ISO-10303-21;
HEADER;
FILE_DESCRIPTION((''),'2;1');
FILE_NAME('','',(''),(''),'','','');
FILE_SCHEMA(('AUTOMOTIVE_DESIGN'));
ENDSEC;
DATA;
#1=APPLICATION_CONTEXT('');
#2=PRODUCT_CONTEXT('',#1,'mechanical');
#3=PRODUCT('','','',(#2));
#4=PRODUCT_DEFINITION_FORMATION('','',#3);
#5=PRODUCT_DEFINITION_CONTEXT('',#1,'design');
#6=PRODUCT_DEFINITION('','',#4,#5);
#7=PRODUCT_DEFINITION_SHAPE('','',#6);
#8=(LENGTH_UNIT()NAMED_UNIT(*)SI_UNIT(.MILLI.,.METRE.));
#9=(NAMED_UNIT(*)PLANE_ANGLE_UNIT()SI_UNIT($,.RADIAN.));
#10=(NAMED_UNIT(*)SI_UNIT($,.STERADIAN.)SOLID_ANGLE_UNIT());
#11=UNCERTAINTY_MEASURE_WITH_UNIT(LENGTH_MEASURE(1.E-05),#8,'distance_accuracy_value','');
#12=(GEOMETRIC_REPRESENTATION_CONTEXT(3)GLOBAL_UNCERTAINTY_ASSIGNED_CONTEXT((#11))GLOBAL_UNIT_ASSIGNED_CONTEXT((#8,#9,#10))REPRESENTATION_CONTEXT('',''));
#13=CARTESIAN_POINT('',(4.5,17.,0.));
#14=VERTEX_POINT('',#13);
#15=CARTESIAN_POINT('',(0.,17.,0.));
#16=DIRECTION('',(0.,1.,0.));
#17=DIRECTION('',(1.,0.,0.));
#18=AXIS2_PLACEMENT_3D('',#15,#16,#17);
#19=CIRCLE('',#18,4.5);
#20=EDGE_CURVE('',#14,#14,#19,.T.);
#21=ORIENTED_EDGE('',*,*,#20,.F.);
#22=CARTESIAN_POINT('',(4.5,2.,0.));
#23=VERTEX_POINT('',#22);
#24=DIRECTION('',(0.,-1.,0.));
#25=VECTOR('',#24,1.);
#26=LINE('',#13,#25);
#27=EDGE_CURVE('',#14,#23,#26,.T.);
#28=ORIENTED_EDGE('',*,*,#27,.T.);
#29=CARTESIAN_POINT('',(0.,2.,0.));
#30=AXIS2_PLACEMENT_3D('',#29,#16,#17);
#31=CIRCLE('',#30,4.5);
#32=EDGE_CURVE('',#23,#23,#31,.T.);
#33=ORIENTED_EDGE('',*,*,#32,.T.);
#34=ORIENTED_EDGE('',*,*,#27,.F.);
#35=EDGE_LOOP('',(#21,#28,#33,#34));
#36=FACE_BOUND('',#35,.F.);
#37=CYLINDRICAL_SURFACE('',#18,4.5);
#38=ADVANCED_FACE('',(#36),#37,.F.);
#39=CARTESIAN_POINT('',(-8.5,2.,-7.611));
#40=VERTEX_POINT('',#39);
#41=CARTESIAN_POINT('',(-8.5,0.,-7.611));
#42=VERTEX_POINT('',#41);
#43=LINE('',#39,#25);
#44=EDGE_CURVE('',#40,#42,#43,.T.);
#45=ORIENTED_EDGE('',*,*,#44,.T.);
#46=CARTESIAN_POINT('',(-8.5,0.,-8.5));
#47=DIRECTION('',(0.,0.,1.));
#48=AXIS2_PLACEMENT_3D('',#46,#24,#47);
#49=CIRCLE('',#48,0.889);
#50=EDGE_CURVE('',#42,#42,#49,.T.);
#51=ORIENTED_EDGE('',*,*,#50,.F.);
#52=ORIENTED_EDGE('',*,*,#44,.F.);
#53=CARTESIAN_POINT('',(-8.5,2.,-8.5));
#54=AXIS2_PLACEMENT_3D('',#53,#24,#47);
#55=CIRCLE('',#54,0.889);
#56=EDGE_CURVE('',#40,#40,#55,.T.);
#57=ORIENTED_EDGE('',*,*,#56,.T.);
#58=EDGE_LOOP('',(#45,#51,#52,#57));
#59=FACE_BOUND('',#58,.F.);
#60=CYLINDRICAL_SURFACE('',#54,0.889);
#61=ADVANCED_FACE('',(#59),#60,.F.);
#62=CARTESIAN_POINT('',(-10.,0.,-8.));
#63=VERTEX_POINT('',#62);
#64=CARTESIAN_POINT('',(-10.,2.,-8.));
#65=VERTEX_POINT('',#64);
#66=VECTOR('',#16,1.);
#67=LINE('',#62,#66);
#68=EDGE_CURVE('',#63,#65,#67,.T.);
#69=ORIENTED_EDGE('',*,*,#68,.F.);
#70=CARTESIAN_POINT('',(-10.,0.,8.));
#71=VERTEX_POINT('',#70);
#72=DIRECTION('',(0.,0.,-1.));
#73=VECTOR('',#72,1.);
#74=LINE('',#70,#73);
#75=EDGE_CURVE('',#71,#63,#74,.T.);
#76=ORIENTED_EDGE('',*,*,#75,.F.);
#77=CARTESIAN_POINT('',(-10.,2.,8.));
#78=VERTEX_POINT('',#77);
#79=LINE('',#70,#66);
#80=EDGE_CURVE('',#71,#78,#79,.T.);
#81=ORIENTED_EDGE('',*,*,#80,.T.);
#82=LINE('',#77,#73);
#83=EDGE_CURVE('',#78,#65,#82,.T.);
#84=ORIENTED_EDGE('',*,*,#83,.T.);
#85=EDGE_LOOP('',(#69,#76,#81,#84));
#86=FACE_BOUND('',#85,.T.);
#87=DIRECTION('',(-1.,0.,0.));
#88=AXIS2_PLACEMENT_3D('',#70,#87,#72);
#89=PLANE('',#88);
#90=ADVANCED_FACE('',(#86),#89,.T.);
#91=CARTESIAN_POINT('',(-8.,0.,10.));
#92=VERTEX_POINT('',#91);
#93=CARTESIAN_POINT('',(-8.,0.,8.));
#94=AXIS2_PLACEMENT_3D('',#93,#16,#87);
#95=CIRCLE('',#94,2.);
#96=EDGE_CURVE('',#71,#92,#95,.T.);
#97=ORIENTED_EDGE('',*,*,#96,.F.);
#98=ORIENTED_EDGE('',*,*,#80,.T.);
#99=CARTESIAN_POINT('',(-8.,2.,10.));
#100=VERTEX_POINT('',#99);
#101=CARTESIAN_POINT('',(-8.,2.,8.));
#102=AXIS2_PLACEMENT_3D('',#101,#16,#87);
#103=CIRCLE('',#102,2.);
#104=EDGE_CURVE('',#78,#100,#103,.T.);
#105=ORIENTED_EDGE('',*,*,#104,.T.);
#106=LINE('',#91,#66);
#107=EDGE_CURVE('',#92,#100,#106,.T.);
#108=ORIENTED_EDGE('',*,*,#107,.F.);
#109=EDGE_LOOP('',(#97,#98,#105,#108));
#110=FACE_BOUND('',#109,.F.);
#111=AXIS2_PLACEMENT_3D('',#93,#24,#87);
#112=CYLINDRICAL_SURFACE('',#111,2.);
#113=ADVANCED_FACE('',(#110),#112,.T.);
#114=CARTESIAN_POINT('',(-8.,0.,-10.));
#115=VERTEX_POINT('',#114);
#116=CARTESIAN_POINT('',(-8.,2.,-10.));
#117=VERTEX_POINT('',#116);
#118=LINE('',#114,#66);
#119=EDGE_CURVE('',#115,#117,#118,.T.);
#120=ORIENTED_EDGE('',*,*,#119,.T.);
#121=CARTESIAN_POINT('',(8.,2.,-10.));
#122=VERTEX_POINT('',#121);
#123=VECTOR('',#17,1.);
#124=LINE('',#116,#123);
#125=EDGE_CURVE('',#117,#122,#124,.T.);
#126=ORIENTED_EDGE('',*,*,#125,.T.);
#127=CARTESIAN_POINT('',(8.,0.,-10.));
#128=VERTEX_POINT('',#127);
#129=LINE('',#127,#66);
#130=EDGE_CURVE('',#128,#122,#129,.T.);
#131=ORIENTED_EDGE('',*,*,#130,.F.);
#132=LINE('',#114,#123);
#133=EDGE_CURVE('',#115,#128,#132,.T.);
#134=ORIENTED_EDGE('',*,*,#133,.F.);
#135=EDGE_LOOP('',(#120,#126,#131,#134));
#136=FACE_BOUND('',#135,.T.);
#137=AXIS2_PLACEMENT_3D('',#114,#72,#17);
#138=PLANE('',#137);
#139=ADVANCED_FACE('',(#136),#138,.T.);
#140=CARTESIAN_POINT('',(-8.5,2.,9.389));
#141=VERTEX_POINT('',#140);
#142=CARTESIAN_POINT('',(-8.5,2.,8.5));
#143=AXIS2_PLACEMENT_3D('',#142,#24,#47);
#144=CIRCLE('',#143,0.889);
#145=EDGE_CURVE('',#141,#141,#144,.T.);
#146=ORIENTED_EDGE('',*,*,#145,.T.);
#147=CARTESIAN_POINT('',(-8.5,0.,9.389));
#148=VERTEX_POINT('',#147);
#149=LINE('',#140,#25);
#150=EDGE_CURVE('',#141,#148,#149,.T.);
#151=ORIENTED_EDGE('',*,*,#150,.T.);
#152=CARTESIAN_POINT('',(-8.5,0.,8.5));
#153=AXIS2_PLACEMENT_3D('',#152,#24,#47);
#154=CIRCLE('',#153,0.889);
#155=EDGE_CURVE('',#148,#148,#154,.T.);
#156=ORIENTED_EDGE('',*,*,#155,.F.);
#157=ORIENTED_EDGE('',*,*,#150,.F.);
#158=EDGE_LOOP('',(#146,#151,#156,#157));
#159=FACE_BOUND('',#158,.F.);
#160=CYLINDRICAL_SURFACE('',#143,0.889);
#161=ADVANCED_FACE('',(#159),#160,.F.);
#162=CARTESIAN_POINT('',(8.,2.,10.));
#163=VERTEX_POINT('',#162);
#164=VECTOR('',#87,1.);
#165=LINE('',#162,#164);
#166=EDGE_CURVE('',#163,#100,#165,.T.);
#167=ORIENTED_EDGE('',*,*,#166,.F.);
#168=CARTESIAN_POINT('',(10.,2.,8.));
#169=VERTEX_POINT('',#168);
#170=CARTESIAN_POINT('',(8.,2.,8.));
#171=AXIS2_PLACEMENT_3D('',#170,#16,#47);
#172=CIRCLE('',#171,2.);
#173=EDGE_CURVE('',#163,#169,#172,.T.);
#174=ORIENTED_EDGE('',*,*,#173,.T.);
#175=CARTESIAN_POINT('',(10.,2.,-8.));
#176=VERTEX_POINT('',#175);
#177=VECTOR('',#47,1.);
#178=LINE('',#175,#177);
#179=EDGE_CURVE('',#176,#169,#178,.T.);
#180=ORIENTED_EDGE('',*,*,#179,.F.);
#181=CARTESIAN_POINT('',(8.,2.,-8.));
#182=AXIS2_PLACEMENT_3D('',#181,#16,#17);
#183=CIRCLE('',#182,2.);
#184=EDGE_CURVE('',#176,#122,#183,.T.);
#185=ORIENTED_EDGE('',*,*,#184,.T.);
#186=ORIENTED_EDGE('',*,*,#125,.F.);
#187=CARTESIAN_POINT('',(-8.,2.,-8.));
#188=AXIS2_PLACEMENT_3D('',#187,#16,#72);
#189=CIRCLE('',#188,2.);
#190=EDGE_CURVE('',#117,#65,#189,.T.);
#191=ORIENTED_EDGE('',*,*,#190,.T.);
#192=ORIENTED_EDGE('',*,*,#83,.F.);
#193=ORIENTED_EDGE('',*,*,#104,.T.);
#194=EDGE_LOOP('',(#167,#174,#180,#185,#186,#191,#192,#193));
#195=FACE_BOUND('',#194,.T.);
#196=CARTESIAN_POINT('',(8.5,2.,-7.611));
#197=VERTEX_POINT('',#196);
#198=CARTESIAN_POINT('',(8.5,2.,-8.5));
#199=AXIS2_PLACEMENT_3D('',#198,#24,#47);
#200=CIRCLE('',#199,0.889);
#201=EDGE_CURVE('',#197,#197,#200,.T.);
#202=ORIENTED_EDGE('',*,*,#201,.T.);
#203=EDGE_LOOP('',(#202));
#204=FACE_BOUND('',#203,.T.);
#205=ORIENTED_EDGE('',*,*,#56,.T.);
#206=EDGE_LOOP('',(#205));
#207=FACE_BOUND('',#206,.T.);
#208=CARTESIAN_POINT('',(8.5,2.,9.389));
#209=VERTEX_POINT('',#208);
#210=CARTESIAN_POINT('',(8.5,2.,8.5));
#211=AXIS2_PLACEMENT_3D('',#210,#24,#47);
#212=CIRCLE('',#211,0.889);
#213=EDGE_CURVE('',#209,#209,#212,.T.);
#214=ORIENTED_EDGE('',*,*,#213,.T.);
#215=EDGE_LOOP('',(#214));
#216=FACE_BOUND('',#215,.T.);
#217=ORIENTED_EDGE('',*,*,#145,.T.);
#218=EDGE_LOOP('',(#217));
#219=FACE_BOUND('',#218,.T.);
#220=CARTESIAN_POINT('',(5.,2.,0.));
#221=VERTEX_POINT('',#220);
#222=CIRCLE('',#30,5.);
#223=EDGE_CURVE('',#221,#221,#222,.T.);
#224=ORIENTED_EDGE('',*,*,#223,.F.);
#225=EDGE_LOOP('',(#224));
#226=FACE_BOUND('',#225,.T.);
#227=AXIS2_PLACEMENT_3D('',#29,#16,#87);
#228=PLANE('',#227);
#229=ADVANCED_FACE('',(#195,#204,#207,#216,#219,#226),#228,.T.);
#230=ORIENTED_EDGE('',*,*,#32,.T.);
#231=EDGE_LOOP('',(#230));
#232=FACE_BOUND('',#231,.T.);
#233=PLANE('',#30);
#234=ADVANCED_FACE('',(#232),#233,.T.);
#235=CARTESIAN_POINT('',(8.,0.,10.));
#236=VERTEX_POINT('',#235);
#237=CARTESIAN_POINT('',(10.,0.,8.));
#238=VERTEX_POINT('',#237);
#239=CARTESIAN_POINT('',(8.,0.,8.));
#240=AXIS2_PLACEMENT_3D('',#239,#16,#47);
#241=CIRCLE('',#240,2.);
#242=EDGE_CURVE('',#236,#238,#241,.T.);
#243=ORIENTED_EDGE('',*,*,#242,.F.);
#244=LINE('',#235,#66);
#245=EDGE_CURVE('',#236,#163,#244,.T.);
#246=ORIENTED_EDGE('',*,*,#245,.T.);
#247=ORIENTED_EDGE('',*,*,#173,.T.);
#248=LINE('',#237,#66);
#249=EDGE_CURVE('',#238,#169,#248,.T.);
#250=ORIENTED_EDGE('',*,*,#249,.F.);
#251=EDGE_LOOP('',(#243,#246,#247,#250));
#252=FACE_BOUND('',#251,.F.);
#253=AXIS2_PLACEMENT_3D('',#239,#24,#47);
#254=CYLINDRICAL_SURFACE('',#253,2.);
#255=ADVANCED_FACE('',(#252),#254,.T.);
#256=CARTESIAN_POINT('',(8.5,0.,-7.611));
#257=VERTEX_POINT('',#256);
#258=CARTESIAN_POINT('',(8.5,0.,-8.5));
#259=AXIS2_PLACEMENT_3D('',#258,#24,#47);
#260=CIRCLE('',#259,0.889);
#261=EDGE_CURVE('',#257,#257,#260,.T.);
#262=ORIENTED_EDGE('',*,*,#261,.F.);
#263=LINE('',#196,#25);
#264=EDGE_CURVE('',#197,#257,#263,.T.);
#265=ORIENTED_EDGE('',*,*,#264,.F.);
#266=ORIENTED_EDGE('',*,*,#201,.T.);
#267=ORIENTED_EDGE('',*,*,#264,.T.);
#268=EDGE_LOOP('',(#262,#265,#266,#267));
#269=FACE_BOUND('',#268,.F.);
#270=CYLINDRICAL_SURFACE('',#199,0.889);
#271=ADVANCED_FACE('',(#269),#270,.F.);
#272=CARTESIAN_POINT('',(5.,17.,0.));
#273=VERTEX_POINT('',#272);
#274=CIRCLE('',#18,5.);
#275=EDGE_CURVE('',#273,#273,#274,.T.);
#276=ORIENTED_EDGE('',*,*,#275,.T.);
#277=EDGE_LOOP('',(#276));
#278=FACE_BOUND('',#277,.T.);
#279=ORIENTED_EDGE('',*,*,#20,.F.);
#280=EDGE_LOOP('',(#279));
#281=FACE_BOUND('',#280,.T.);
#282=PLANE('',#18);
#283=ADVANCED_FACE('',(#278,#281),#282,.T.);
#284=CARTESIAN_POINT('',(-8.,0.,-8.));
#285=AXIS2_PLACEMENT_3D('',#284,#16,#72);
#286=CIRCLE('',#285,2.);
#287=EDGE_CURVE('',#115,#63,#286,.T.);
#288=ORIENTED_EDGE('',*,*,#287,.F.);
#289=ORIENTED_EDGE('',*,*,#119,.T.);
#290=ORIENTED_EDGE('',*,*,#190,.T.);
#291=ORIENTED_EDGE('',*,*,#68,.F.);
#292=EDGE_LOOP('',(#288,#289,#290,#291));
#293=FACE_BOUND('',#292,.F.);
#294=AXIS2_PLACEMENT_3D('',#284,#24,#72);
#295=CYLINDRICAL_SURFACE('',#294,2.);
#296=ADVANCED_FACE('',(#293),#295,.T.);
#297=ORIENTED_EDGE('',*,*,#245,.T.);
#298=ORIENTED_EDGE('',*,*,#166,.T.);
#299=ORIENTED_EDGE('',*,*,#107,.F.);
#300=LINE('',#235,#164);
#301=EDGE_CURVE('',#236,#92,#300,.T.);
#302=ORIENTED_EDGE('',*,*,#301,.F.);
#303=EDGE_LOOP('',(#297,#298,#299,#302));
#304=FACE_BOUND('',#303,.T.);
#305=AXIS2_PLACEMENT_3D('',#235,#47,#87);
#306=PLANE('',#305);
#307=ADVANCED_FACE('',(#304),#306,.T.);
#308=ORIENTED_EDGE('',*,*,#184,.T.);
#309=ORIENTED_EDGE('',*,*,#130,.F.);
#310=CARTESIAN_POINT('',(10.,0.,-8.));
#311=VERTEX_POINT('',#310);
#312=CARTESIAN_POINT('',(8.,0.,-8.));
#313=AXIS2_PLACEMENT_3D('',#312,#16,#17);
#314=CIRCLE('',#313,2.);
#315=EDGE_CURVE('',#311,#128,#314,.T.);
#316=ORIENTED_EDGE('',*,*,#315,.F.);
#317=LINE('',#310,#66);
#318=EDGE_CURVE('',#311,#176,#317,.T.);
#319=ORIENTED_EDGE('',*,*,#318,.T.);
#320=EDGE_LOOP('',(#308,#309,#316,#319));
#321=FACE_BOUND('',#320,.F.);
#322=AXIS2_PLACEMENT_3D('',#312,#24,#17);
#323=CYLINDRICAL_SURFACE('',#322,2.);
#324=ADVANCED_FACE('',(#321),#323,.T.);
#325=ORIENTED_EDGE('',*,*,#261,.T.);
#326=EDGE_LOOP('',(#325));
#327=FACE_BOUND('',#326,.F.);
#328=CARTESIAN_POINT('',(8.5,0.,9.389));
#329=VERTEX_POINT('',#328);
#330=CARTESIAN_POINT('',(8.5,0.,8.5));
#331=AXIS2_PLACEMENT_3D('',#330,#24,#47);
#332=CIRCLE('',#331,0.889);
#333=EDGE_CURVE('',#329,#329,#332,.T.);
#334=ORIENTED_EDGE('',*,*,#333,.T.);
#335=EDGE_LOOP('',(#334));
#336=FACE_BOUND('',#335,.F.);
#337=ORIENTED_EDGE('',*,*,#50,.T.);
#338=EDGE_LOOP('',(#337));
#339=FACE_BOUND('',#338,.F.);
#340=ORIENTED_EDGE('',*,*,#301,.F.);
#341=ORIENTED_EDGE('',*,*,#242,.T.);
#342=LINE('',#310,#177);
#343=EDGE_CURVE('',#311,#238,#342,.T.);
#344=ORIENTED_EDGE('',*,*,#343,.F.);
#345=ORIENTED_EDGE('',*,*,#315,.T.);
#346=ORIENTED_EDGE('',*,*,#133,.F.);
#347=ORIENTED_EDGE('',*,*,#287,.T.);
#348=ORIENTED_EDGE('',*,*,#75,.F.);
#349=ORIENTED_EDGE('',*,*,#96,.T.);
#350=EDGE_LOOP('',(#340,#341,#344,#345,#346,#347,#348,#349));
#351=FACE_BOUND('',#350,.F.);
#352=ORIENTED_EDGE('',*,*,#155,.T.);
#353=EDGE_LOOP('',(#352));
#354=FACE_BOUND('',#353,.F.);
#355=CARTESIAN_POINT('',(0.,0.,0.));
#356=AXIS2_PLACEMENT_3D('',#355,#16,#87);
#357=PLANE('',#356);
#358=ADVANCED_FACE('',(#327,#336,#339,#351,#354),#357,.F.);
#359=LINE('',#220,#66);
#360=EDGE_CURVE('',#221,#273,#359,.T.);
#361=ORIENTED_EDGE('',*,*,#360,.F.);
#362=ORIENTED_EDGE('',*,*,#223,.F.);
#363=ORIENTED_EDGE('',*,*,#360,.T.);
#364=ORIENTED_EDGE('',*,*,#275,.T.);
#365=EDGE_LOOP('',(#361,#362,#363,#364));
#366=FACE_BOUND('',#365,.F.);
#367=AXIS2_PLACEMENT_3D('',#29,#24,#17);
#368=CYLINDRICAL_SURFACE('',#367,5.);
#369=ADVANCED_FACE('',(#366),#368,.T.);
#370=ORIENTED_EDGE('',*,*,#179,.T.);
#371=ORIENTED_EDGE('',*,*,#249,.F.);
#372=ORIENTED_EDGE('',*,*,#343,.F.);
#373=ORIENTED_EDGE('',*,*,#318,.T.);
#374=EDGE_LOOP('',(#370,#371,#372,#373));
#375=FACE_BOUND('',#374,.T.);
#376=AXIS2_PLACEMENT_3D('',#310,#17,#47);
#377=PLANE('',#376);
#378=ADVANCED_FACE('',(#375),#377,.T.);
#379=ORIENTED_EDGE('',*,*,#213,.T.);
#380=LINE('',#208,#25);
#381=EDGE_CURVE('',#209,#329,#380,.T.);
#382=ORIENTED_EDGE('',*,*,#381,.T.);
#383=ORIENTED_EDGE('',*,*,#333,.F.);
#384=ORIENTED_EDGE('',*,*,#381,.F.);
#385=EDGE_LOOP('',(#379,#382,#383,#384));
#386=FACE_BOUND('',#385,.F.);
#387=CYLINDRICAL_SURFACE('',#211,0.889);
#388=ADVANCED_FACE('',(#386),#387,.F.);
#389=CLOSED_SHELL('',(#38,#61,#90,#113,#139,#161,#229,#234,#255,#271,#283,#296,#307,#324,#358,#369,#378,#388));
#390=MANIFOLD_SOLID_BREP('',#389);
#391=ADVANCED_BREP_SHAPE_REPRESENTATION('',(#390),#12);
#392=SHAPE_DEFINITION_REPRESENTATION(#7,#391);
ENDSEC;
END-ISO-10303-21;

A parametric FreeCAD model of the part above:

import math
import FreeCAD as App
import Part
import Sketcher

V = App.Vector

doc = App.newDocument("Part")
body = doc.addObject("PartDesign::Body", "Body")

sketch1 = doc.addObject("Sketcher::SketchObject", "Sketch")
body.addObject(sketch1)
sketch1.AttachmentSupport = (doc.XZ_Plane, [""])
sketch1.MapMode = "FlatFace"
sketch1.addGeometry(Part.LineSegment(V(-8, 10, 0), V(8, 10, 0)), False)
sketch1.addGeometry(Part.ArcOfCircle(Part.Circle(V(8, 8, 0), V(0, 0, 1), 2), math.radians(0), math.radians(90)), False)
sketch1.addGeometry(Part.LineSegment(V(10, 8, 0), V(10, -8, 0)), False)
sketch1.addGeometry(Part.ArcOfCircle(Part.Circle(V(8, -8, 0), V(0, 0, 1), 2), math.radians(-90), math.radians(0)), False)
sketch1.addGeometry(Part.LineSegment(V(8, -10, 0), V(-8, -10, 0)), False)
sketch1.addGeometry(Part.ArcOfCircle(Part.Circle(V(-8, -8, 0), V(0, 0, 1), 2), math.radians(180), math.radians(270)), False)
sketch1.addGeometry(Part.LineSegment(V(-10, -8, 0), V(-10, 8, 0)), False)
sketch1.addGeometry(Part.ArcOfCircle(Part.Circle(V(-8, 8, 0), V(0, 0, 1), 2), math.radians(90), math.radians(180)), False)
sketch1.addConstraint(Sketcher.Constraint("Tangent", 0, 2, 1, 2))
sketch1.addConstraint(Sketcher.Constraint("Tangent", 1, 1, 2, 1))
sketch1.addConstraint(Sketcher.Constraint("Tangent", 2, 2, 3, 2))
sketch1.addConstraint(Sketcher.Constraint("Tangent", 3, 1, 4, 1))
sketch1.addConstraint(Sketcher.Constraint("Tangent", 4, 2, 5, 2))
sketch1.addConstraint(Sketcher.Constraint("Tangent", 5, 1, 6, 1))
sketch1.addConstraint(Sketcher.Constraint("Tangent", 6, 2, 7, 2))
sketch1.addConstraint(Sketcher.Constraint("Tangent", 7, 1, 0, 1))
sketch1.addConstraint(Sketcher.Constraint("Horizontal", 0))
sketch1.addConstraint(Sketcher.Constraint("Vertical", 2))
sketch1.addConstraint(Sketcher.Constraint("Horizontal", 4))
sketch1.addConstraint(Sketcher.Constraint("Vertical", 6))
sketch1.addConstraint(Sketcher.Constraint("Equal", 1, 3))
sketch1.addConstraint(Sketcher.Constraint("Equal", 3, 5))
sketch1.addConstraint(Sketcher.Constraint("Equal", 5, 7))
sketch1.addConstraint(Sketcher.Constraint("Symmetric", 1, 3, 5, 3, -1, 1))
sketch1.addConstraint(Sketcher.Constraint("Equal", 4, 2))
sketch1.addConstraint(Sketcher.Constraint("Radius", 1, 2.0))
sketch1.addConstraint(Sketcher.Constraint("DistanceX", 0, 1, 0, 2, 16.0))
pad1 = doc.addObject("PartDesign::Pad", "Pad")
body.addObject(pad1)
pad1.Profile = sketch1
pad1.Length = 2
pad1.Reversed = True

sketch2 = doc.addObject("Sketcher::SketchObject", "Sketch001")
body.addObject(sketch2)
sketch2.AttachmentSupport = (doc.XZ_Plane, [""])
sketch2.MapMode = "FlatFace"
sketch2.AttachmentOffset = App.Placement(V(0, 0, -2), App.Rotation())
sketch2.addGeometry(Part.Circle(V(-8.5, 8.5, 0), V(0, 0, 1), 0.9), False)
sketch2.addConstraint(Sketcher.Constraint("Diameter", 0, 1.778))
sketch2.addConstraint(Sketcher.Constraint("DistanceX", 0, 3, -1, 1, 8.5))
sketch2.addConstraint(Sketcher.Constraint("DistanceY", -1, 1, 0, 3, 8.5))
doc.recompute()
hole = doc.addObject("PartDesign::Hole", "Hole")
body.addObject(hole)
hole.Profile = sketch2
hole.ThreadType = "None"
hole.Diameter = 1.778
hole.DepthType = "ThroughAll"
hole.Reversed = True

sketch3 = doc.addObject("Sketcher::SketchObject", "Sketch002")
body.addObject(sketch3)
sketch3.AttachmentSupport = (doc.XZ_Plane, [""])
sketch3.MapMode = "FlatFace"
sketch3.AttachmentOffset = App.Placement(V(0, 0, -2), App.Rotation())
sketch3.addGeometry(Part.Circle(V(8.5, 8.5, 0), V(0, 0, 1), 0.9), False)
sketch3.addConstraint(Sketcher.Constraint("Diameter", 0, 1.778))
sketch3.addConstraint(Sketcher.Constraint("DistanceX", -1, 1, 0, 3, 8.5))
sketch3.addConstraint(Sketcher.Constraint("DistanceY", -1, 1, 0, 3, 8.5))
doc.recompute()
hole2 = doc.addObject("PartDesign::Hole", "Hole001")
body.addObject(hole2)
hole2.Profile = sketch3
hole2.ThreadType = "None"
hole2.Diameter = 1.778
hole2.DepthType = "ThroughAll"
hole2.Reversed = True

sketch4 = doc.addObject("Sketcher::SketchObject", "Sketch003")
body.addObject(sketch4)
sketch4.AttachmentSupport = (doc.XZ_Plane, [""])
sketch4.MapMode = "FlatFace"
sketch4.AttachmentOffset = App.Placement(V(0, 0, -2), App.Rotation())
sketch4.addGeometry(Part.Circle(V(-8.5, -8.5, 0), V(0, 0, 1), 0.9), False)
sketch4.addConstraint(Sketcher.Constraint("Diameter", 0, 1.778))
sketch4.addConstraint(Sketcher.Constraint("DistanceX", 0, 3, -1, 1, 8.5))
sketch4.addConstraint(Sketcher.Constraint("DistanceY", 0, 3, -1, 1, 8.5))
doc.recompute()
hole3 = doc.addObject("PartDesign::Hole", "Hole002")
body.addObject(hole3)
hole3.Profile = sketch4
hole3.ThreadType = "None"
hole3.Diameter = 1.778
hole3.DepthType = "ThroughAll"
hole3.Reversed = True

sketch5 = doc.addObject("Sketcher::SketchObject", "Sketch004")
body.addObject(sketch5)
sketch5.AttachmentSupport = (doc.XZ_Plane, [""])
sketch5.MapMode = "FlatFace"
sketch5.AttachmentOffset = App.Placement(V(0, 0, -2), App.Rotation())
sketch5.addGeometry(Part.Circle(V(8.5, -8.5, 0), V(0, 0, 1), 0.9), False)
sketch5.addConstraint(Sketcher.Constraint("Diameter", 0, 1.778))
sketch5.addConstraint(Sketcher.Constraint("DistanceX", -1, 1, 0, 3, 8.5))
sketch5.addConstraint(Sketcher.Constraint("DistanceY", 0, 3, -1, 1, 8.5))
doc.recompute()
hole4 = doc.addObject("PartDesign::Hole", "Hole003")
body.addObject(hole4)
hole4.Profile = sketch5
hole4.ThreadType = "None"
hole4.Diameter = 1.778
hole4.DepthType = "ThroughAll"
hole4.Reversed = True

sketch6 = doc.addObject("Sketcher::SketchObject", "Sketch005")
body.addObject(sketch6)
sketch6.AttachmentSupport = (doc.XZ_Plane, [""])
sketch6.MapMode = "FlatFace"
sketch6.AttachmentOffset = App.Placement(V(0, 0, -2), App.Rotation())
sketch6.addGeometry(Part.Circle(V(0, 0, 0), V(0, 0, 1), 5), False)
sketch6.addConstraint(Sketcher.Constraint("Coincident", 0, 3, -1, 1))
sketch6.addConstraint(Sketcher.Constraint("Diameter", 0, 10.0))
pad2 = doc.addObject("PartDesign::Pad", "Pad001")
body.addObject(pad2)
pad2.Profile = sketch6
pad2.Type = "TwoLengths"
pad2.Length = 15
pad2.Length2 = 1
pad2.Reversed = True

sketch7 = doc.addObject("Sketcher::SketchObject", "Sketch006")
body.addObject(sketch7)
sketch7.AttachmentSupport = (doc.XZ_Plane, [""])
sketch7.MapMode = "FlatFace"
sketch7.AttachmentOffset = App.Placement(V(0, 0, -17), App.Rotation())
sketch7.addGeometry(Part.Circle(V(0, 0, 0), V(0, 0, 1), 4.5), False)
sketch7.addConstraint(Sketcher.Constraint("Coincident", 0, 3, -1, 1))
sketch7.addConstraint(Sketcher.Constraint("Diameter", 0, 9.0))
pocket1 = doc.addObject("PartDesign::Pocket", "Pocket")
body.addObject(pocket1)
pocket1.Profile = sketch7
pocket1.Length = 15
pocket1.Reversed = True

doc.recompute()
